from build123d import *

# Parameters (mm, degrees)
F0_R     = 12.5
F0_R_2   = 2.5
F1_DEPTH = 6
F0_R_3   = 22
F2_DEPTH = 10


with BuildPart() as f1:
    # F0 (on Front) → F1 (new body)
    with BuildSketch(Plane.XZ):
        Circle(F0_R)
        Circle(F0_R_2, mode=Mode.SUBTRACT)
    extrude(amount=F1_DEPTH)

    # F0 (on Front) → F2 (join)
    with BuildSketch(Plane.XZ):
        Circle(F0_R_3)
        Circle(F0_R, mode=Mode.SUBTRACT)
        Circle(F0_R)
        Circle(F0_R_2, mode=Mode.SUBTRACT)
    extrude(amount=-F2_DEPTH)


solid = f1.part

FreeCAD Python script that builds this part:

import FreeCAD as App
import Part
import Sketcher
from FreeCAD import Vector

doc = App.newDocument("Part")
params = doc.addObject("Spreadsheet::Sheet", "Params")
for row, (alias, value) in enumerate([
    ("sketch1_diameter", "25 mm"),
    ("sketch1_diameter2", "5 mm"),
    ("pad1_length", "6 mm"),
    ("sketch2_diameter", "44 mm"),
    ("sketch2_diameter2", "5 mm"),
    ("pad2_length", "10 mm"),
], start=1):
    params.set(f"A{row}", alias)
    params.set(f"B{row}", "=" + value)
    params.setAlias(f"B{row}", alias)

body = doc.addObject("PartDesign::Body", "Body")

# Sketch on XZ plane
sketch1 = doc.addObject("Sketcher::SketchObject", "Sketch")
body.addObject(sketch1)
sketch1.AttachmentSupport = (doc.XZ_Plane, [""])
sketch1.MapMode = "FlatFace"
sketch1.addGeometry(Part.Circle(Vector(0, 0, 0), Vector(0, 0, 1), 12.5), False)
sketch1.addGeometry(Part.Circle(Vector(0, 0, 0), Vector(0, 0, 1), 2.5), False)
sketch1.addConstraint(Sketcher.Constraint("Coincident", 0, 3, -1, 1))
sketch1.addConstraint(Sketcher.Constraint("Coincident", 1, 3, -1, 1))
sketch1.addConstraint(Sketcher.Constraint("Diameter", 0, 25.0))
sketch1.addConstraint(Sketcher.Constraint("Diameter", 1, 5.0))
sketch1.setExpression("Constraints[2]", "Params.sketch1_diameter")
sketch1.setExpression("Constraints[3]", "Params.sketch1_diameter2")
pad1 = doc.addObject("PartDesign::Pad", "Pad")
body.addObject(pad1)
pad1.Profile = sketch1
pad1.setExpression("Length", "Params.pad1_length")

# Sketch on XZ plane
sketch2 = doc.addObject("Sketcher::SketchObject", "Sketch001")
body.addObject(sketch2)
sketch2.AttachmentSupport = (doc.XZ_Plane, [""])
sketch2.MapMode = "FlatFace"
sketch2.addGeometry(Part.Circle(Vector(0, 0, 0), Vector(0, 0, 1), 22), False)
sketch2.addGeometry(Part.Circle(Vector(0, 0, 0), Vector(0, 0, 1), 2.5), False)
sketch2.addConstraint(Sketcher.Constraint("Coincident", 0, 3, -1, 1))
sketch2.addConstraint(Sketcher.Constraint("Coincident", 1, 3, -1, 1))
sketch2.addConstraint(Sketcher.Constraint("Diameter", 0, 44.0))
sketch2.addConstraint(Sketcher.Constraint("Diameter", 1, 5.0))
sketch2.setExpression("Constraints[2]", "Params.sketch2_diameter")
sketch2.setExpression("Constraints[3]", "Params.sketch2_diameter2")
pad2 = doc.addObject("PartDesign::Pad", "Pad001")
body.addObject(pad2)
pad2.Profile = sketch2
pad2.setExpression("Length", "Params.pad2_length")
pad2.Reversed = True

doc.recompute()
